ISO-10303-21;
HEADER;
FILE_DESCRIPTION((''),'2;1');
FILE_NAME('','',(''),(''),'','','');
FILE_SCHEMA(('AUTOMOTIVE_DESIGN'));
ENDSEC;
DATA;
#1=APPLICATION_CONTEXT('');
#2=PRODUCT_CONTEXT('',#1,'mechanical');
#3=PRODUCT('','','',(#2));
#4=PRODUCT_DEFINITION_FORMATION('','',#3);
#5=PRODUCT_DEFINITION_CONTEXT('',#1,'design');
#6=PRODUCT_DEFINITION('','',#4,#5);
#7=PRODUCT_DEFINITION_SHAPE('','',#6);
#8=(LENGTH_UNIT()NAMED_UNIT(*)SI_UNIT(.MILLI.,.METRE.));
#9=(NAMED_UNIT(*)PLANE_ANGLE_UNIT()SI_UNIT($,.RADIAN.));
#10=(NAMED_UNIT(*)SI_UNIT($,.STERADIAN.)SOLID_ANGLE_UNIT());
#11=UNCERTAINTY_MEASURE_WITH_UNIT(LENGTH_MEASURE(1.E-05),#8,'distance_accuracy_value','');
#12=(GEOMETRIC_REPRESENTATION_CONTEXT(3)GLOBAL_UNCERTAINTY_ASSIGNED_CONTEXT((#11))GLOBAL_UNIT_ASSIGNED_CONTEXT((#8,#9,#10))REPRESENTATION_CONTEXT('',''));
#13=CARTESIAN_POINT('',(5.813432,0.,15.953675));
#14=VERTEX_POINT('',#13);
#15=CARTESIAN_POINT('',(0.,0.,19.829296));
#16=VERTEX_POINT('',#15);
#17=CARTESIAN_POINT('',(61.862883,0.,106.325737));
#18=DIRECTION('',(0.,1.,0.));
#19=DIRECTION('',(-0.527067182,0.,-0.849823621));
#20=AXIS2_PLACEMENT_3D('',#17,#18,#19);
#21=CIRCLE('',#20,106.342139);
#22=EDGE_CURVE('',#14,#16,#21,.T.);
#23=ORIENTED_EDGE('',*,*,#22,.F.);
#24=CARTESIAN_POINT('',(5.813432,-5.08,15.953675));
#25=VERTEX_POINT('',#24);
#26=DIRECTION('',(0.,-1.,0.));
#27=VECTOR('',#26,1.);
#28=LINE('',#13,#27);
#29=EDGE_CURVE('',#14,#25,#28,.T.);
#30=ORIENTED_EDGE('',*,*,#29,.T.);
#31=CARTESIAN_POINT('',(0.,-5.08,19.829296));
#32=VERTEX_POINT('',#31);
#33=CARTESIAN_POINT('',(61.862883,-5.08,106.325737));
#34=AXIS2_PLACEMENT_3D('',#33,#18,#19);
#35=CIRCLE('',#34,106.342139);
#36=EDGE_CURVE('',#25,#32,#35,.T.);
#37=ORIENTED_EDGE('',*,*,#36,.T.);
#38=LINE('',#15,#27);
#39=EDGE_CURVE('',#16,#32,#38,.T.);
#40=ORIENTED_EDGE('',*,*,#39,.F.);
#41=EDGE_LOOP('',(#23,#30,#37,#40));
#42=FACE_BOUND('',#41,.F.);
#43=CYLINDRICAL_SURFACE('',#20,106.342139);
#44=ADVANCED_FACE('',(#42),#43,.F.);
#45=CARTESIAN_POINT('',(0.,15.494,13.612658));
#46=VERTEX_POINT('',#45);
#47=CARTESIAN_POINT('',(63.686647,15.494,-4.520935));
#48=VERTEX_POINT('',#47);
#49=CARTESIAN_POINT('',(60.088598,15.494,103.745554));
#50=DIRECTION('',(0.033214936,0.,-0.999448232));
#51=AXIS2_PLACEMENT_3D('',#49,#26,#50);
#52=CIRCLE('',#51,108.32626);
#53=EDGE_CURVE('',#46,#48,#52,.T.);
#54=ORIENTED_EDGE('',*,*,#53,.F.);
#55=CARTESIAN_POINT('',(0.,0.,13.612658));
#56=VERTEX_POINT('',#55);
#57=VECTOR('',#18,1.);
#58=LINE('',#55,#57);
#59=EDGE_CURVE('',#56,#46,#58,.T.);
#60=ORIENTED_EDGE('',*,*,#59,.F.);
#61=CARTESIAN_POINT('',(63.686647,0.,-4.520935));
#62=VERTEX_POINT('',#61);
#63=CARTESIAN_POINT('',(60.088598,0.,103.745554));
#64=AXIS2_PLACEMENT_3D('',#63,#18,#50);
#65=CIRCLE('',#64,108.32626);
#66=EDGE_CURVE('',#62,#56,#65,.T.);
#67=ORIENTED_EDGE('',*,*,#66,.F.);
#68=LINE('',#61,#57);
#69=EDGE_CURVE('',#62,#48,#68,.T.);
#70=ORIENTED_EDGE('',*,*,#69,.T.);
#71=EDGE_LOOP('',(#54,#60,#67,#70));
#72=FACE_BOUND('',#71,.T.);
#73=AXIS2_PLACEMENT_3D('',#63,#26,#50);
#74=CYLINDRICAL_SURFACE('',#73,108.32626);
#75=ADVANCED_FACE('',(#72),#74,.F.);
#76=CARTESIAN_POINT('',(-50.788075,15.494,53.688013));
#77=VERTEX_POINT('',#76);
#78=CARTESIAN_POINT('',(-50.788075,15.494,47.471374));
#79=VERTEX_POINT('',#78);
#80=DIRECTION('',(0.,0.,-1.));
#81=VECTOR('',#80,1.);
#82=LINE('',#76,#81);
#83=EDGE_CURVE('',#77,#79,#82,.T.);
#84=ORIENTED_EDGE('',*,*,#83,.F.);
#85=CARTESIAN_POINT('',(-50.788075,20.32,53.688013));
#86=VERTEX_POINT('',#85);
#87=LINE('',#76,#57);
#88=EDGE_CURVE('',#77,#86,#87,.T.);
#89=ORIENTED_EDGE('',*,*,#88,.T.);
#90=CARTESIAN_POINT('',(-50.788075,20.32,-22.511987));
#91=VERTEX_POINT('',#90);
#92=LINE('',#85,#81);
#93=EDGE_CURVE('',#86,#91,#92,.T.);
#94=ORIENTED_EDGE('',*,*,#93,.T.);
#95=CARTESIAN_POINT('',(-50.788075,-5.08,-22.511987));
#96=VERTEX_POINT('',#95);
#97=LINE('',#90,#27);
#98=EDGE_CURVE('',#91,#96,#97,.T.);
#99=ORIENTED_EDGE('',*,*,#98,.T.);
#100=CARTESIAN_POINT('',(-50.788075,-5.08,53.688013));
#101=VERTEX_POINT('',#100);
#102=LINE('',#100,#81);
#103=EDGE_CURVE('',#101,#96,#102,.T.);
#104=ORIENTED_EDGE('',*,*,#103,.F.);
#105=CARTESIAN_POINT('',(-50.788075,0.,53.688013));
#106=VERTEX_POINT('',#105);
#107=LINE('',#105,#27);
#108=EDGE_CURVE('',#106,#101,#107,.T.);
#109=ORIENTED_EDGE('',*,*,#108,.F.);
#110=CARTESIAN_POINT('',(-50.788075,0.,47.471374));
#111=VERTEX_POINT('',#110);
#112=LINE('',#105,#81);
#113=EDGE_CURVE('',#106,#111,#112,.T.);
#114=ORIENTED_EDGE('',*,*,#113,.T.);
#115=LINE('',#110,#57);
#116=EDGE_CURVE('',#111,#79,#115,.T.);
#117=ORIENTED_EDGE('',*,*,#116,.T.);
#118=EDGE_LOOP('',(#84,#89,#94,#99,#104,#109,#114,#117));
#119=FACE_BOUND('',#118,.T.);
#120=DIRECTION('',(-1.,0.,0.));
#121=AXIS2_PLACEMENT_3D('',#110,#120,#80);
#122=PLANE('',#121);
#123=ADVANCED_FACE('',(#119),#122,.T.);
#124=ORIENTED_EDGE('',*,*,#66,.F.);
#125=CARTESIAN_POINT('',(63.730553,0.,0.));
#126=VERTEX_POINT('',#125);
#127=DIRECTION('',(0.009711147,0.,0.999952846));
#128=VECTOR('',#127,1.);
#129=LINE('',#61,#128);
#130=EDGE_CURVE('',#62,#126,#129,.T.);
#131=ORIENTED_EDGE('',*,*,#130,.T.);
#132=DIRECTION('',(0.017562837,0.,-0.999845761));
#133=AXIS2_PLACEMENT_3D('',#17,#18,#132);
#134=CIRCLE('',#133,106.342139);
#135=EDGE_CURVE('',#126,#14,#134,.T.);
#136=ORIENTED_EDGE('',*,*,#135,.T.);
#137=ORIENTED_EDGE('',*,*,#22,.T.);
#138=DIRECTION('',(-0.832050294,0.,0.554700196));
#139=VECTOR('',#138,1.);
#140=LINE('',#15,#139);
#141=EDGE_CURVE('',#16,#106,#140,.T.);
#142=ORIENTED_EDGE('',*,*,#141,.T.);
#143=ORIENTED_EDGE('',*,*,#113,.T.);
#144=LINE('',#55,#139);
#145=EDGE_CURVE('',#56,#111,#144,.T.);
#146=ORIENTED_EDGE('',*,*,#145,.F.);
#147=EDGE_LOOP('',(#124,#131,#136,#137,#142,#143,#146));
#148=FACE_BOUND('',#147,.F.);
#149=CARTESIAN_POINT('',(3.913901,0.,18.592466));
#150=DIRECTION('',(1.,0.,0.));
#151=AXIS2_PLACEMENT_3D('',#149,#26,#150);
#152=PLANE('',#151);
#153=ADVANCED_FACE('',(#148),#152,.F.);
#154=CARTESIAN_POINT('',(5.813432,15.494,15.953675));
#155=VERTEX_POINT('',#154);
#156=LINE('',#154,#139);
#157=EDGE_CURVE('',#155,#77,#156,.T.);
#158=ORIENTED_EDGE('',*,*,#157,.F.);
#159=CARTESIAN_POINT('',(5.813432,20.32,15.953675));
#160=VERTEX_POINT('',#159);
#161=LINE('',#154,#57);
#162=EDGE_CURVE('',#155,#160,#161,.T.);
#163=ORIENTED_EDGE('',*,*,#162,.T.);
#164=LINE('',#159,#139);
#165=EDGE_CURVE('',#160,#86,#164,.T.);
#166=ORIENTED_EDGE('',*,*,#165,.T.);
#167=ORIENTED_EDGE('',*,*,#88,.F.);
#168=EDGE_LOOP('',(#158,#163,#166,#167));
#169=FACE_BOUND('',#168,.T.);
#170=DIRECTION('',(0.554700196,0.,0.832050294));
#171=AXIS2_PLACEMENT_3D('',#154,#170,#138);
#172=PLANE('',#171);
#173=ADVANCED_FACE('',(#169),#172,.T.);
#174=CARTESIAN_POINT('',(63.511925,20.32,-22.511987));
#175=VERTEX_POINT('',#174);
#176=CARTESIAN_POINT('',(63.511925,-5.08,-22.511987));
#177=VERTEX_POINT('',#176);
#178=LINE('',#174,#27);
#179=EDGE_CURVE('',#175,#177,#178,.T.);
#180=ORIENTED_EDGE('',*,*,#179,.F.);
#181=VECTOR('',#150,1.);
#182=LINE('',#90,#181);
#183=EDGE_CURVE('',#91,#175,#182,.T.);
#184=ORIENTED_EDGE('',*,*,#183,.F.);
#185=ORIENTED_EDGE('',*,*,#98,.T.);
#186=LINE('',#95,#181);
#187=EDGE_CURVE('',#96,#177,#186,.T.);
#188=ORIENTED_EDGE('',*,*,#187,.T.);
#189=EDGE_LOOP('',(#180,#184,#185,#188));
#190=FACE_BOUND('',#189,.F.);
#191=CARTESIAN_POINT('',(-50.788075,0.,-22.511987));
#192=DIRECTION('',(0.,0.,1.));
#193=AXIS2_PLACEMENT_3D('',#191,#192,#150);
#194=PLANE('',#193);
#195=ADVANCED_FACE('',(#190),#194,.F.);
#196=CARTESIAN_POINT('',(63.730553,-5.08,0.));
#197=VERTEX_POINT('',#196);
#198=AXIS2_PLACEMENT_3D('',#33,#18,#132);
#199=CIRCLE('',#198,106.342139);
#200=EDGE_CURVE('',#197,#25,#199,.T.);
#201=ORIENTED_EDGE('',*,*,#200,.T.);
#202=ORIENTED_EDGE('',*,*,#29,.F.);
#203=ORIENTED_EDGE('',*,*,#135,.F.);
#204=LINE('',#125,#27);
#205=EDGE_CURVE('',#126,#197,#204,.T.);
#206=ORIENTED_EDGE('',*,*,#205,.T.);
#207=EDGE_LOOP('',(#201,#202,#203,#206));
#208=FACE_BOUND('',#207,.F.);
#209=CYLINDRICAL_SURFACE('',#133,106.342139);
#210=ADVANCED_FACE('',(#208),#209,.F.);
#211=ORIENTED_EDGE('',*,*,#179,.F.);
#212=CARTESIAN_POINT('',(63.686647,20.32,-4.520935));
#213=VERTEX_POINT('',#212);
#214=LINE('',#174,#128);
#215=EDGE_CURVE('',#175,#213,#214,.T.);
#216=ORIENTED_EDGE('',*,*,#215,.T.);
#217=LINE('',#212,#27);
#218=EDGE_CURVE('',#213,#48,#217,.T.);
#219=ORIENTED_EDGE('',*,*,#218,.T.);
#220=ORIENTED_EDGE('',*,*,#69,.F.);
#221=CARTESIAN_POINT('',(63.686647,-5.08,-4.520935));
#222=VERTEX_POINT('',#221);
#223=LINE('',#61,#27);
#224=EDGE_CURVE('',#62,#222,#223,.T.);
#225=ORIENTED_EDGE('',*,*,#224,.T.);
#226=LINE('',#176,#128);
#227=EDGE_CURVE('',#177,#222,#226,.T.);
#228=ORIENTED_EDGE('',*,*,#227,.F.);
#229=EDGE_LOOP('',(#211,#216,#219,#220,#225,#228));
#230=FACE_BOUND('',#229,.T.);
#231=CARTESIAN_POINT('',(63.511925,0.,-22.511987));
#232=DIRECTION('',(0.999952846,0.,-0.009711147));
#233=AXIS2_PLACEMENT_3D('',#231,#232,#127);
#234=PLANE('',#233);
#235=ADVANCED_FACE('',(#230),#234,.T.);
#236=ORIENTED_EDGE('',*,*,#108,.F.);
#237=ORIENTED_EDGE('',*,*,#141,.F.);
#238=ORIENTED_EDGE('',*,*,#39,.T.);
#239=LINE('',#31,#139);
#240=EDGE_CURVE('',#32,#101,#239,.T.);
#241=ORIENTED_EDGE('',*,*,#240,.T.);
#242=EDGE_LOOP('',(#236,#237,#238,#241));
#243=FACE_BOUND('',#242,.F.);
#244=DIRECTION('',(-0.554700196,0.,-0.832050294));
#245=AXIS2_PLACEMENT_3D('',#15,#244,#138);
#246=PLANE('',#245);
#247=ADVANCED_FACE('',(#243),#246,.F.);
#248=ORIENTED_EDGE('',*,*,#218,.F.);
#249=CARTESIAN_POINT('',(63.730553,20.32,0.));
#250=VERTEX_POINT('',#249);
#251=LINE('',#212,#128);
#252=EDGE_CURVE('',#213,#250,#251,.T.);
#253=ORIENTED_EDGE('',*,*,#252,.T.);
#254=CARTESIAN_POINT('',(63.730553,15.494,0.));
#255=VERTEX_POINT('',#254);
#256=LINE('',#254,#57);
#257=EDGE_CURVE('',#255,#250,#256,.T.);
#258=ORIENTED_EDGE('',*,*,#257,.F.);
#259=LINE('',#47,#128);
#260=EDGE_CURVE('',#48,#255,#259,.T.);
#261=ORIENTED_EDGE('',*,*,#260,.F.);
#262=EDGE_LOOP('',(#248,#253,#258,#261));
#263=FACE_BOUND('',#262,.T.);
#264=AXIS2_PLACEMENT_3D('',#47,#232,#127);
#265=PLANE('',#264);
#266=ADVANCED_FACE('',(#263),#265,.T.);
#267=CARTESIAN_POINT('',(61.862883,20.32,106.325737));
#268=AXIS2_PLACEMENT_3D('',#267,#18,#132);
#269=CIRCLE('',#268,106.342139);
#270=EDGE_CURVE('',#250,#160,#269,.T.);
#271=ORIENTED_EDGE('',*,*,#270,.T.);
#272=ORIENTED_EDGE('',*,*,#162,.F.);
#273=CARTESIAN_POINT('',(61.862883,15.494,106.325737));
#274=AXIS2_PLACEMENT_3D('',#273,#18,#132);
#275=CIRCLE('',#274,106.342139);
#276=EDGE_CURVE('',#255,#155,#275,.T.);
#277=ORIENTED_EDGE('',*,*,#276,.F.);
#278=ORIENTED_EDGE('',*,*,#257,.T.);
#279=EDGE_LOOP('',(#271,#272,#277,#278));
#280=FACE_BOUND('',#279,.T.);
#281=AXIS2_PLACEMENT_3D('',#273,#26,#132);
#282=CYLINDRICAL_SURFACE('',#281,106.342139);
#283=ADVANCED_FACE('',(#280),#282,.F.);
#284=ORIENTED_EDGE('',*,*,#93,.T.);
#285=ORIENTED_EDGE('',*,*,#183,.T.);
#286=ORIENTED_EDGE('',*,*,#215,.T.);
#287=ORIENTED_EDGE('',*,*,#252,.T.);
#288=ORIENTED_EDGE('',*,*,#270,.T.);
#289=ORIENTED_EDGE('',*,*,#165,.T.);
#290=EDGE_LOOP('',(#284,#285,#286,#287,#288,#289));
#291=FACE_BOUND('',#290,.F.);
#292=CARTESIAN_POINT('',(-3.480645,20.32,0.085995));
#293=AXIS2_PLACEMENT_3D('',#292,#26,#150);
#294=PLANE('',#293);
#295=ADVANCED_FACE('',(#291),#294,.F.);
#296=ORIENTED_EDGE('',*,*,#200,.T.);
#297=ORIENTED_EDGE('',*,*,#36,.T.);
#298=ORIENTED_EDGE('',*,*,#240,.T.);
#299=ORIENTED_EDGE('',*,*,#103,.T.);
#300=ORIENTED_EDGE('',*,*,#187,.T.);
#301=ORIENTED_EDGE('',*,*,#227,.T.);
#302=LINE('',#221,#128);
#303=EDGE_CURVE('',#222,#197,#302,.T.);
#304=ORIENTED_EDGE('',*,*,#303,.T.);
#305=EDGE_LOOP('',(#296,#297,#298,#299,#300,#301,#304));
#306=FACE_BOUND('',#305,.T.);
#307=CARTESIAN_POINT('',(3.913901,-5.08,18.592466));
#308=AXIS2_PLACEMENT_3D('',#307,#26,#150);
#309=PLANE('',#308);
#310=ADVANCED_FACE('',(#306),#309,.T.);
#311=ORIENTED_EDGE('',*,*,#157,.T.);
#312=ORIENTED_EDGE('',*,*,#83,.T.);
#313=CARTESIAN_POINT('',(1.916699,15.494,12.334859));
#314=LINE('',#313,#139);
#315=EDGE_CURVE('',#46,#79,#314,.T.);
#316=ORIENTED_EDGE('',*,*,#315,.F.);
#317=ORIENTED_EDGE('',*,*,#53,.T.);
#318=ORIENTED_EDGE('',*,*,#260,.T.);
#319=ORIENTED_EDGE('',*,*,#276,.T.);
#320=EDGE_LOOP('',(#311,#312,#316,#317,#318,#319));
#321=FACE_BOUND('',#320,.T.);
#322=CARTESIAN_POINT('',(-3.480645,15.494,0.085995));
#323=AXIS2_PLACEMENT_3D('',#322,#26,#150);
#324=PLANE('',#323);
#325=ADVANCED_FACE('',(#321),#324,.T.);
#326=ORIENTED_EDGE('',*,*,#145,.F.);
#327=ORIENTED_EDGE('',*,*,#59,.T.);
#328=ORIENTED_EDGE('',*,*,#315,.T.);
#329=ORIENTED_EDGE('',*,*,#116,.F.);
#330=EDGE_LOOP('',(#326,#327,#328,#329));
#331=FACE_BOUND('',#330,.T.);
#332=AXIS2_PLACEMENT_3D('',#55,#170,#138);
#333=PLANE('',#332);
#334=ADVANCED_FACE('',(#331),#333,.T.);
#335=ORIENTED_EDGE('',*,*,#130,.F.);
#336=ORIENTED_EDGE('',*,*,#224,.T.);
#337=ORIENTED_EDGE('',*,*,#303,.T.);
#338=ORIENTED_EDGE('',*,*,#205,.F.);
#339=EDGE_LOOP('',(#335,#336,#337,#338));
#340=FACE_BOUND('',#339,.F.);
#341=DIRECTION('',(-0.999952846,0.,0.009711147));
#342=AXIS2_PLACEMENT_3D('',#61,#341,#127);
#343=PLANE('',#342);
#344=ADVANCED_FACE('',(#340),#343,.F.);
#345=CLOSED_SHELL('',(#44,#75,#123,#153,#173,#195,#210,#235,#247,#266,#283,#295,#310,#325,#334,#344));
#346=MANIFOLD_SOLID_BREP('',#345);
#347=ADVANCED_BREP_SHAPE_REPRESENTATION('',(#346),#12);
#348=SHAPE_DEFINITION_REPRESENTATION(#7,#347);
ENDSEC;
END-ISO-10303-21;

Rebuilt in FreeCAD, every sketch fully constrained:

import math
import FreeCAD as App
import Part
import Sketcher

V = App.Vector
Q = App.Units.Quantity

doc = App.newDocument("Part")
body = doc.addObject("PartDesign::Body", "Body")

# Sketch on XZ plane
sketch1 = body.newObject("Sketcher::SketchObject", "Sketch")
sketch1.AttachmentSupport = (doc.getObject("XZ_Plane"), [""])
sketch1.MapMode = "FlatFace"
sketch1.addGeometry([
    Part.LineSegment(V(-50.8, 53.7, 0), V(-50.8, -22.5, 0)),  # 0
    Part.LineSegment(V(-50.8, -22.5, 0), V(63.5, -22.5, 0)),  # 1
    Part.LineSegment(V(63.5, -22.5, 0), V(63.7, -4.5, 0)),  # 2
    Part.LineSegment(V(63.7, -4.5, 0), V(63.7, 0, 0)),  # 3
    Part.ArcOfCircle(Part.Circle(V(61.9, 106.3, 0), V(0, 0, 1), 106.3), math.radians(-122), math.radians(-89)),  # 4
    Part.ArcOfCircle(Part.Circle(V(61.9, 106.3, 0), V(0, 0, 1), 106.3), math.radians(-125.57), math.radians(-121.81)),  # 5
    Part.LineSegment(V(0, 19.8, 0), V(-50.8, 53.7, 0)),  # 6
], False)
sketch1.addConstraint([
    Sketcher.Constraint("Coincident", 0, 2, 1, 1),
    Sketcher.Constraint("Coincident", 1, 2, 2, 1),
    Sketcher.Constraint("Coincident", 2, 2, 3, 1),
    Sketcher.Constraint("Coincident", 3, 2, 4, 2),
    Sketcher.Constraint("Tangent", 4, 1, 5, 2),
    Sketcher.Constraint("Coincident", 5, 1, 6, 1),
    Sketcher.Constraint("Coincident", 6, 2, 0, 1),
    Sketcher.Constraint("Vertical", 0),
    Sketcher.Constraint("Horizontal", 1),
    Sketcher.Constraint("Equal", 4, 5),
    Sketcher.Constraint("PointOnObject", 3, 2, -1),
    Sketcher.Constraint("PointOnObject", 5, 1, -2),
    Sketcher.Constraint("Parallel", 2, 3),
    Sketcher.Constraint("DistanceY", 0, 2, 0, 1, Q("3 in")),
    Sketcher.Constraint("DistanceX", 1, 1, 1, 2, Q("4.5 in")),
    Sketcher.Constraint("Radius", 4, 106.342139),
    Sketcher.Constraint("Distance", 2, 17.991901),
    Sketcher.Constraint("Distance", 6, 61.039669),
    Sketcher.Constraint("DistanceX", -1, 1, 4, 1, 5.813432),
    Sketcher.Constraint("DistanceX", 1, 2, 2, 2, 0.174722),
    Sketcher.Constraint("DistanceY", 2, 2, 4, 3, 110.846672),
    Sketcher.Constraint("DistanceX", 4, 3, 3, 2, 1.86767),
])
pad1 = body.newObject("PartDesign::Pad", "Pad")
pad1.Profile = sketch1
pad1.Length = Q("0.2 in")
body2 = doc.addObject("PartDesign::Body", "Body001")

# Sketch on XZ plane
sketch2 = body2.newObject("Sketcher::SketchObject", "Sketch001")
sketch2.AttachmentSupport = (doc.getObject("XZ_Plane001"), [""])
sketch2.MapMode = "FlatFace"
sketch2.AttachmentOffset = App.Placement(V(0, 0, -0.61 * 25.4), App.Rotation())
sketch2.addGeometry([
    Part.LineSegment(V(-50.8, -22.5, 0), V(63.5, -22.5, 0)),  # 0
    Part.LineSegment(V(63.5, -22.5, 0), V(63.7, -4.5, 0)),  # 1
    Part.LineSegment(V(63.7, -4.5, 0), V(63.7, 0, 0)),  # 2
    Part.ArcOfCircle(Part.Circle(V(61.9, 106.3, 0), V(0, 0, 1), 106.3), math.radians(-122), math.radians(-89)),  # 3
    Part.LineSegment(V(5.8, 16, 0), V(-50.8, 53.7, 0)),  # 4
    Part.LineSegment(V(-50.8, 53.7, 0), V(-50.8, -22.5, 0)),  # 5
], False)
sketch2.addConstraint([
    Sketcher.Constraint("Coincident", 0, 2, 1, 1),
    Sketcher.Constraint("Coincident", 1, 2, 2, 1),
    Sketcher.Constraint("Coincident", 2, 2, 3, 2),
    Sketcher.Constraint("Coincident", 3, 1, 4, 1),
    Sketcher.Constraint("Coincident", 4, 2, 5, 1),
    Sketcher.Constraint("Coincident", 5, 2, 0, 1),
    Sketcher.Constraint("Horizontal", 0),
    Sketcher.Constraint("Vertical", 5),
    Sketcher.Constraint("PointOnObject", 2, 2, -1),
    Sketcher.Constraint("Parallel", 1, 2),
    Sketcher.Constraint("DistanceY", 5, 2, 5, 1, Q("3 in")),
    Sketcher.Constraint("DistanceX", 0, 1, 0, 2, Q("4.5 in")),
    Sketcher.Constraint("Radius", 3, 106.342139),
    Sketcher.Constraint("Distance", 1, 17.991901),
    Sketcher.Constraint("DistanceX", -1, 1, 3, 1, 5.813432),
    Sketcher.Constraint("DistanceX", 0, 2, 1, 2, 0.174722),
    Sketcher.Constraint("DistanceY", 1, 2, 3, 3, 110.846672),
    Sketcher.Constraint("DistanceX", 3, 3, 2, 2, 1.86767),
    Sketcher.Constraint("DistanceX", 3, 1, 2, 2, 57.917121),
])
pad2 = body2.newObject("PartDesign::Pad", "Pad001")
pad2.Profile = sketch2
pad2.Length = Q("0.19 in")
pad2.Reversed = True
body.AllowCompound = True
doc.recompute()

boolean = body.newObject("PartDesign::Boolean", "Boolean")
boolean.Type = "Fuse"
boolean.addObjects([body2])

# Sketch on XZ plane
sketch3 = body.newObject("Sketcher::SketchObject", "Sketch002")
sketch3.AttachmentSupport = (doc.getObject("XZ_Plane"), [""])
sketch3.MapMode = "FlatFace"
sketch3.addGeometry([
    Part.LineSegment(V(-51, 47, 0), V(-51, -23, 0)),  # 0
    Part.LineSegment(V(-51, -23, 0), V(64, -23, 0)),  # 1
    Part.LineSegment(V(64, -23, 0), V(64, -5, 0)),  # 2
    Part.ArcOfCircle(Part.Circle(V(60, 104, 0), V(0, 0, 1), 108), math.radians(-124), math.radians(-88)),  # 3
    Part.LineSegment(V(0, 14, 0), V(-51, 47, 0)),  # 4
], False)
sketch3.addConstraint([
    Sketcher.Constraint("Coincident", 0, 2, 1, 1),
    Sketcher.Constraint("Coincident", 1, 2, 2, 1),
    Sketcher.Constraint("Coincident", 2, 2, 3, 2),
    Sketcher.Constraint("Tangent", 3, 1, 4, 1),
    Sketcher.Constraint("Coincident", 4, 2, 0, 1),
    Sketcher.Constraint("Vertical", 0),
    Sketcher.Constraint("Horizontal", 1),
    Sketcher.Constraint("PointOnObject", 3, 1, -2),
    Sketcher.Constraint("DistanceX", 1, 1, 1, 2, Q("4.5 in")),
    Sketcher.Constraint("Radius", 3, 108.32626),
    Sketcher.Constraint("Distance", 2, 17.991901),
    Sketcher.Constraint("DistanceY", 0, 2, 0, 1, 69.983361),
    Sketcher.Constraint("Distance", 4, 61.039669),
    Sketcher.Constraint("DistanceY", 0, 2, 3, 3, 126.257541),
    Sketcher.Constraint("DistanceY", -1, 1, 3, 3, 103.745554),
])
pad3 = body.newObject("PartDesign::Pad", "Pad002")
pad3.Profile = sketch3
pad3.Type = "TwoLengths"
pad3.Length = Q("0.62 in")
pad3.Length2 = Q("0.04 in")
pad3.Reversed = True

doc.recompute()
